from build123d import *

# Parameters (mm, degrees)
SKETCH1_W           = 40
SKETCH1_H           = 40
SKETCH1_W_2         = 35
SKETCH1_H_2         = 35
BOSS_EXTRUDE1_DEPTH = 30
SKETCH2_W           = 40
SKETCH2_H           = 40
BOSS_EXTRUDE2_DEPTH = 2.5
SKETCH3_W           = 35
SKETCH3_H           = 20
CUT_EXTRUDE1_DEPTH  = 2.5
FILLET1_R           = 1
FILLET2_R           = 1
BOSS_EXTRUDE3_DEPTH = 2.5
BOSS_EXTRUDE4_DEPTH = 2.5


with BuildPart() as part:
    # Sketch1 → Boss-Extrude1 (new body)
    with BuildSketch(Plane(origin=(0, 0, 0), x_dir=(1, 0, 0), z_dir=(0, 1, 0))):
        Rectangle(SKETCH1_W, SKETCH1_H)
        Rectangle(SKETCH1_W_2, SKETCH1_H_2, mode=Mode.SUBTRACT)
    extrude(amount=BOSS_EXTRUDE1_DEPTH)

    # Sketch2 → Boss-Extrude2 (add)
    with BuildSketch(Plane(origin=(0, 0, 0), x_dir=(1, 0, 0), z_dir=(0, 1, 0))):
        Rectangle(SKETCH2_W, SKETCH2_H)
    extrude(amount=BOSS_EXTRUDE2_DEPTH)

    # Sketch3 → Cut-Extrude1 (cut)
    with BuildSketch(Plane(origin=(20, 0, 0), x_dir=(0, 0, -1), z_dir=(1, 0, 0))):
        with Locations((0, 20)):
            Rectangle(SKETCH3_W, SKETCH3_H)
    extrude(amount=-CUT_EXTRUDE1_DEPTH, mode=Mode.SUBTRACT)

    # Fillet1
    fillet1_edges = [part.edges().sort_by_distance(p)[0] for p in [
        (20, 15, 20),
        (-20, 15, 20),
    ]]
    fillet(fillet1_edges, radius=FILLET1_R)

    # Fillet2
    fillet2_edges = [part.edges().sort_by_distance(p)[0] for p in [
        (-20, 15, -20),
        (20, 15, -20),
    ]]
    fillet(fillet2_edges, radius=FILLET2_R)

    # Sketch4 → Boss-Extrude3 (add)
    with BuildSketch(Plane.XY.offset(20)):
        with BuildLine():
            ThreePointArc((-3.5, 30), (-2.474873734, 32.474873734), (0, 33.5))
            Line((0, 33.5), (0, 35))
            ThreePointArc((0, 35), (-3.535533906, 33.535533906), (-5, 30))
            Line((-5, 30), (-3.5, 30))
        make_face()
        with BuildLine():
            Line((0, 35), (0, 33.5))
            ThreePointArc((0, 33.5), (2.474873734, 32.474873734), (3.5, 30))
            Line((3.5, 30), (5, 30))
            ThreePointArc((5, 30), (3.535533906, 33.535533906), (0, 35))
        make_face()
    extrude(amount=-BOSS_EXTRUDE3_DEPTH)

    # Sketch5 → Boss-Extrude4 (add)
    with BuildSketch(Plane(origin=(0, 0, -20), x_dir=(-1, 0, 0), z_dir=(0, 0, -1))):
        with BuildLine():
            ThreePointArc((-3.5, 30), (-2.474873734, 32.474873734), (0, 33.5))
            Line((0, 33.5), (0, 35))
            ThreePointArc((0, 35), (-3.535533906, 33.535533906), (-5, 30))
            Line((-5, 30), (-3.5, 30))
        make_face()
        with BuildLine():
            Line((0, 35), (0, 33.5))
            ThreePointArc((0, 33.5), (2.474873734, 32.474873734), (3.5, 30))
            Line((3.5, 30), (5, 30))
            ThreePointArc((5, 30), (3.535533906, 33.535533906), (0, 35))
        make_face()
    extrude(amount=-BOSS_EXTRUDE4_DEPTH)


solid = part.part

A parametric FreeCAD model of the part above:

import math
import FreeCAD as App
import Part
import Sketcher

V = App.Vector
Q = App.Units.Quantity


def edges_at(feature, points):
    """Names of the edges that pass closest to the given points."""
    edges = feature.Shape.Edges
    near = lambda p: min(range(len(edges)), key=lambda i: edges[i].distToShape(Part.Vertex(*p))[0])
    return sorted({f"Edge{near(p) + 1}" for p in points})


def add_polygon(sketch, points):
    """Adds a closed chain of lines whose ends are joined by coincident constraints."""
    first, n = sketch.GeometryCount, len(points)
    for a, b in zip(points, points[1:] + points[:1]):
        sketch.addGeometry(Part.LineSegment(App.Vector(*a, 0), App.Vector(*b, 0)), False)
    for i in range(n):
        sketch.addConstraint(Sketcher.Constraint("Coincident", first + i, 2, first + (i + 1) % n, 1))

doc = App.newDocument("Part")
params = doc.addObject("Spreadsheet::Sheet", "Params")
for row, (alias, value) in enumerate([
    ("sketch1_width", "40 mm"),
    ("sketch1_width2", "35 mm"),
    ("pad1_length", "30 mm"),
    ("sketch2_width", "40 mm"),
    ("pad2_length", "2.5 mm"),
    ("sketch3_width", "20 mm"),
    ("sketch3_height", "35 mm"),
    ("pocket1_length", "2.5 mm"),
    ("fillet_radius", "1 mm"),
    ("fillet2_radius", "1 mm"),
    ("sketch4_radius", "5 mm"),
    ("sketch4_radius2", "3.5 mm"),
    ("pad3_length", "2.5 mm"),
    ("sketch5_radius", "5 mm"),
    ("sketch5_radius2", "3.5 mm"),
    ("pad4_length", "2.5 mm"),
], start=1):
    params.set(f"A{row}", alias)
    params.set(f"B{row}", "=" + value)
    params.setAlias(f"B{row}", alias)

body = doc.addObject("PartDesign::Body", "Body")

# Sketch on XZ plane
sketch1 = body.newObject("Sketcher::SketchObject", "Sketch")
sketch1.AttachmentSupport = (doc.getObject("XZ_Plane"), [""])
sketch1.MapMode = "FlatFace"
add_polygon(sketch1, [(-20, -20), (-20, 20), (20, 20), (20, -20)])  # lines 0-3
add_polygon(sketch1, [(18, 18), (-18, 18), (-18, -18), (18, -18)])  # lines 4-7
sketch1.addConstraint([
    Sketcher.Constraint("Vertical", 0),
    Sketcher.Constraint("Horizontal", 1),
    Sketcher.Constraint("Vertical", 2),
    Sketcher.Constraint("Horizontal", 3),
    Sketcher.Constraint("Horizontal", 4),
    Sketcher.Constraint("Vertical", 5),
    Sketcher.Constraint("Horizontal", 6),
    Sketcher.Constraint("Vertical", 7),
    Sketcher.Constraint("Symmetric", 0, 2, 2, 2, -1, 1),
    Sketcher.Constraint("Symmetric", 4, 2, 6, 2, -1, 1),
    Sketcher.Constraint("Equal", 3, 0),
    Sketcher.Constraint("Equal", 6, 5),
    Sketcher.Constraint("DistanceX", 1, 1, 1, 2, Q("40 mm")),
    Sketcher.Constraint("DistanceX", 4, 2, 4, 1, Q("35 mm")),
])
sketch1.setExpression("Constraints[20]", "Params.sketch1_width")
sketch1.setExpression("Constraints[21]", "Params.sketch1_width2")
pad1 = body.newObject("PartDesign::Pad", "Pad")
pad1.Profile = sketch1
pad1.setExpression("Length", "Params.pad1_length")
pad1.Reversed = True

# Sketch on XZ plane
sketch2 = body.newObject("Sketcher::SketchObject", "Sketch001")
sketch2.AttachmentSupport = (doc.getObject("XZ_Plane"), [""])
sketch2.MapMode = "FlatFace"
add_polygon(sketch2, [(-20, -20), (-20, 20), (20, 20), (20, -20)])  # lines 0-3
sketch2.addConstraint([
    Sketcher.Constraint("Vertical", 0),
    Sketcher.Constraint("Horizontal", 1),
    Sketcher.Constraint("Vertical", 2),
    Sketcher.Constraint("Horizontal", 3),
    Sketcher.Constraint("Symmetric", 0, 2, 2, 2, -1, 1),
    Sketcher.Constraint("Equal", 3, 0),
    Sketcher.Constraint("DistanceX", 1, 1, 1, 2, Q("40 mm")),
])
sketch2.setExpression("Constraints[10]", "Params.sketch2_width")
pad2 = body.newObject("PartDesign::Pad", "Pad001")
pad2.Profile = sketch2
pad2.setExpression("Length", "Params.pad2_length")
pad2.Reversed = True

# Sketch on YZ plane
sketch3 = body.newObject("Sketcher::SketchObject", "Sketch002")
sketch3.AttachmentSupport = (doc.getObject("YZ_Plane"), [""])
sketch3.MapMode = "FlatFace"
sketch3.AttachmentOffset = App.Placement(V(0, 0, 20), App.Rotation())
add_polygon(sketch3, [(30, 18), (10, 18), (10, -18), (30, -18)])  # lines 0-3
sketch3.addConstraint([
    Sketcher.Constraint("Horizontal", 0),
    Sketcher.Constraint("Vertical", 1),
    Sketcher.Constraint("Horizontal", 2),
    Sketcher.Constraint("Vertical", 3),
    Sketcher.Constraint("DistanceX", 0, 2, 0, 1, Q("20 mm")),
    Sketcher.Constraint("DistanceY", 1, 2, 1, 1, Q("35 mm")),
    Sketcher.Constraint("DistanceX", -1, 1, 0, 2, Q("10 mm")),
    Sketcher.Constraint("DistanceY", -1, 1, 0, 2, Q("17.5 mm")),
])
sketch3.setExpression("Constraints[8]", "Params.sketch3_width")
sketch3.setExpression("Constraints[9]", "Params.sketch3_height")
pocket1 = body.newObject("PartDesign::Pocket", "Pocket")
pocket1.Profile = sketch3
pocket1.setExpression("Length", "Params.pocket1_length")
doc.recompute()

fillet = body.newObject("PartDesign::Fillet", "Fillet")
fillet.Base = (pocket1, edges_at(pocket1, [(20, 15, 20), (-20, 15, 20)]))
fillet.setExpression("Radius", "Params.fillet_radius")
doc.recompute()

fillet2 = body.newObject("PartDesign::Fillet", "Fillet001")
fillet2.Base = (fillet, edges_at(fillet, [(-20, 15, -20), (20, 15, -20)]))
fillet2.setExpression("Radius", "Params.fillet2_radius")

# Sketch on XY plane
sketch4 = body.newObject("Sketcher::SketchObject", "Sketch003")
sketch4.AttachmentSupport = (doc.getObject("XY_Plane"), [""])
sketch4.MapMode = "FlatFace"
sketch4.AttachmentOffset = App.Placement(V(0, 0, 20), App.Rotation())
sketch4.addGeometry([
    Part.ArcOfCircle(Part.Circle(V(0, 30, 0), V(0, 0, 1), 3.5), math.radians(90), math.radians(180)),  # 0
    Part.ArcOfCircle(Part.Circle(V(0, 30, 0), V(0, 0, 1), 3.5), math.radians(0), math.radians(90)),  # 1
    Part.LineSegment(V(3.5, 30, 0), V(5, 30, 0)),  # 2
    Part.ArcOfCircle(Part.Circle(V(0, 30, 0), V(0, 0, 1), 5), math.radians(0), math.radians(90)),  # 3
    Part.ArcOfCircle(Part.Circle(V(0, 30, 0), V(0, 0, 1), 5), math.radians(90), math.radians(180)),  # 4
    Part.LineSegment(V(-5, 30, 0), V(-3.5, 30, 0)),  # 5
], False)
sketch4.addConstraint([
    Sketcher.Constraint("Tangent", 0, 1, 1, 2),
    Sketcher.Constraint("Coincident", 1, 1, 2, 1),
    Sketcher.Constraint("Coincident", 2, 2, 3, 1),
    Sketcher.Constraint("Tangent", 3, 2, 4, 1),
    Sketcher.Constraint("Coincident", 4, 2, 5, 1),
    Sketcher.Constraint("Coincident", 5, 2, 0, 2),
    Sketcher.Constraint("Horizontal", 2),
    Sketcher.Constraint("Horizontal", 5),
    Sketcher.Constraint("Coincident", 3, 3, 0, 3),
    Sketcher.Constraint("Equal", 0, 1),
    Sketcher.Constraint("Equal", 3, 4),
    Sketcher.Constraint("Symmetric", 2, 2, 4, 2, -2),
    Sketcher.Constraint("PointOnObject", 0, 1, -2),
    Sketcher.Constraint("PointOnObject", 3, 2, -2),
    Sketcher.Constraint("Horizontal", 4, 3, 1, 1),
    Sketcher.Constraint("Radius", 3, Q("5 mm")),
    Sketcher.Constraint("Radius", 0, Q("3.5 mm")),
    Sketcher.Constraint("DistanceY", -1, 1, 0, 3, Q("30 mm")),
])
sketch4.setExpression("Constraints[15]", "Params.sketch4_radius")
sketch4.setExpression("Constraints[16]", "Params.sketch4_radius2")
pad3 = body.newObject("PartDesign::Pad", "Pad002")
pad3.Profile = sketch4
pad3.setExpression("Length", "Params.pad3_length")
pad3.Reversed = True

# Sketch on XY plane
sketch5 = body.newObject("Sketcher::SketchObject", "Sketch004")
sketch5.AttachmentSupport = (doc.getObject("XY_Plane"), [""])
sketch5.MapMode = "FlatFace"
sketch5.AttachmentOffset = App.Placement(V(0, 0, -20), App.Rotation())
sketch5.addGeometry([
    Part.ArcOfCircle(Part.Circle(V(0, 30, 0), V(0, 0, 1), 5), math.radians(0), math.radians(90)),  # 0
    Part.LineSegment(V(5, 30, 0), V(3.5, 30, 0)),  # 1
    Part.ArcOfCircle(Part.Circle(V(0, 30, 0), V(0, 0, 1), 3.5), math.radians(0), math.radians(90)),  # 2
    Part.ArcOfCircle(Part.Circle(V(0, 30, 0), V(0, 0, 1), 3.5), math.radians(90), math.radians(180)),  # 3
    Part.LineSegment(V(-3.5, 30, 0), V(-5, 30, 0)),  # 4
    Part.ArcOfCircle(Part.Circle(V(0, 30, 0), V(0, 0, 1), 5), math.radians(90), math.radians(180)),  # 5
], False)
sketch5.addConstraint([
    Sketcher.Constraint("Coincident", 0, 1, 1, 1),
    Sketcher.Constraint("Coincident", 1, 2, 2, 1),
    Sketcher.Constraint("Tangent", 2, 2, 3, 1),
    Sketcher.Constraint("Coincident", 3, 2, 4, 1),
    Sketcher.Constraint("Coincident", 4, 2, 5, 2),
    Sketcher.Constraint("Tangent", 5, 1, 0, 2),
    Sketcher.Constraint("Horizontal", 1),
    Sketcher.Constraint("Horizontal", 4),
    Sketcher.Constraint("Coincident", 2, 3, 0, 3),
    Sketcher.Constraint("Equal", 2, 3),
    Sketcher.Constraint("Equal", 0, 5),
    Sketcher.Constraint("Symmetric", 1, 2, 3, 2, -2),
    Sketcher.Constraint("PointOnObject", 2, 2, -2),
    Sketcher.Constraint("PointOnObject", 5, 1, -2),
    Sketcher.Constraint("Horizontal", 5, 3, 0, 1),
    Sketcher.Constraint("Radius", 0, Q("5 mm")),
    Sketcher.Constraint("Radius", 2, Q("3.5 mm")),
    Sketcher.Constraint("DistanceY", -1, 1, 0, 3, Q("30 mm")),
])
sketch5.setExpression("Constraints[15]", "Params.sketch5_radius")
sketch5.setExpression("Constraints[16]", "Params.sketch5_radius2")
pad4 = body.newObject("PartDesign::Pad", "Pad003")
pad4.Profile = sketch5
pad4.setExpression("Length", "Params.pad4_length")

doc.recompute()
